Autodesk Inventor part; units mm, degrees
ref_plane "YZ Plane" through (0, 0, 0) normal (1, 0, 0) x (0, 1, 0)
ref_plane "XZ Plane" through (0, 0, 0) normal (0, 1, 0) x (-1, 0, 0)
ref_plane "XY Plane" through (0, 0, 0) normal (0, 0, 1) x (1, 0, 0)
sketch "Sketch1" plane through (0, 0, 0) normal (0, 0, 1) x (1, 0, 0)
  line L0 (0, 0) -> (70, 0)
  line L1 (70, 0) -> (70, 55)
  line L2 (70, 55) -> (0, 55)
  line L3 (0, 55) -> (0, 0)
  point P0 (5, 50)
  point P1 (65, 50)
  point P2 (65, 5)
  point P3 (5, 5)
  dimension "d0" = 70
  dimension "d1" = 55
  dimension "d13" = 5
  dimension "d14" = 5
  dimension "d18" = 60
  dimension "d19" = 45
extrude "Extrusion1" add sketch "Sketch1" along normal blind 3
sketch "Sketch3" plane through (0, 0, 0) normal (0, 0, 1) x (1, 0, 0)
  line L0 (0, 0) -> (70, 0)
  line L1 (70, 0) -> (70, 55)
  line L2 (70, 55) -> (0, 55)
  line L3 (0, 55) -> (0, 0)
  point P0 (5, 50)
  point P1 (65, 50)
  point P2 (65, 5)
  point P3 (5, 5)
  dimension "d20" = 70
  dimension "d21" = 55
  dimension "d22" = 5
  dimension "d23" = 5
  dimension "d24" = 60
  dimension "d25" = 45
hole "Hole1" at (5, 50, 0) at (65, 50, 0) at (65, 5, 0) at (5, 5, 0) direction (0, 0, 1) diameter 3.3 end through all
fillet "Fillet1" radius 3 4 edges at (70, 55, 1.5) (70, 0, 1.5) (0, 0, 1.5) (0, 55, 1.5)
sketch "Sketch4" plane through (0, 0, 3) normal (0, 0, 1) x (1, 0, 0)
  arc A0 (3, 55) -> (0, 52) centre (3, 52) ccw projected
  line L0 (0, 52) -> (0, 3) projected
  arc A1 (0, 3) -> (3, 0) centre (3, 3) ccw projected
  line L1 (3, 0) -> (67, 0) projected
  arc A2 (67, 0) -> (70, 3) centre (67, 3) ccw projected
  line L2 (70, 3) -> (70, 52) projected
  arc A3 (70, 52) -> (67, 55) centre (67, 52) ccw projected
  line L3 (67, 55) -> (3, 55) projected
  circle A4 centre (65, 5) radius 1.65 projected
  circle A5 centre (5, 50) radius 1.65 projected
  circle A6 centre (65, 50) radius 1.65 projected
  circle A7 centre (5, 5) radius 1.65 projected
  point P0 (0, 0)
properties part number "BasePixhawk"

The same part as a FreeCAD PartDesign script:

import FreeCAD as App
import Part
import Sketcher

V = App.Vector


def edges_at(feature, points):
    """Names of the edges that pass closest to the given points."""
    edges = feature.Shape.Edges
    near = lambda p: min(range(len(edges)), key=lambda i: edges[i].distToShape(Part.Vertex(*p))[0])
    return sorted({f"Edge{near(p) + 1}" for p in points})


def add_polygon(sketch, points):
    """Adds a closed chain of lines whose ends are joined by coincident constraints."""
    first, n = sketch.GeometryCount, len(points)
    for a, b in zip(points, points[1:] + points[:1]):
        sketch.addGeometry(Part.LineSegment(App.Vector(*a, 0), App.Vector(*b, 0)), False)
    for i in range(n):
        sketch.addConstraint(Sketcher.Constraint("Coincident", first + i, 2, first + (i + 1) % n, 1))

doc = App.newDocument("Part")
body = doc.addObject("PartDesign::Body", "Body")

sketch1 = doc.addObject("Sketcher::SketchObject", "Sketch")
body.addObject(sketch1)
sketch1.AttachmentSupport = (doc.XY_Plane, [""])
sketch1.MapMode = "FlatFace"
add_polygon(sketch1, [(0, 55), (0, 0), (70, 0), (70, 55)])
sketch1.addConstraint(Sketcher.Constraint("Vertical", 0))
sketch1.addConstraint(Sketcher.Constraint("Horizontal", 1))
sketch1.addConstraint(Sketcher.Constraint("Vertical", 2))
sketch1.addConstraint(Sketcher.Constraint("Horizontal", 3))
sketch1.addConstraint(Sketcher.Constraint("Coincident", 0, 2, -1, 1))
sketch1.addConstraint(Sketcher.Constraint("DistanceX", 1, 1, 1, 2, 70.0))
sketch1.addConstraint(Sketcher.Constraint("DistanceY", 0, 2, 0, 1, 55.0))
pad1 = doc.addObject("PartDesign::Pad", "Pad")
body.addObject(pad1)
pad1.Profile = sketch1
pad1.Length = 3

sketch2 = doc.addObject("Sketcher::SketchObject", "Sketch001")
body.addObject(sketch2)
sketch2.AttachmentSupport = (doc.XY_Plane, [""])
sketch2.MapMode = "FlatFace"
sketch2.addGeometry(Part.Circle(V(5, 50, 0), V(0, 0, 1), 1.6), False)
sketch2.addGeometry(Part.Circle(V(65, 50, 0), V(0, 0, 1), 1.6), False)
sketch2.addGeometry(Part.Circle(V(65, 5, 0), V(0, 0, 1), 1.6), False)
sketch2.addGeometry(Part.Circle(V(5, 5, 0), V(0, 0, 1), 1.6), False)
sketch2.addConstraint(Sketcher.Constraint("Equal", 0, 1))
sketch2.addConstraint(Sketcher.Constraint("Equal", 1, 2))
sketch2.addConstraint(Sketcher.Constraint("Equal", 2, 3))
sketch2.addConstraint(Sketcher.Constraint("Horizontal", 0, 3, 1, 3))
sketch2.addConstraint(Sketcher.Constraint("Horizontal", 2, 3, 3, 3))
sketch2.addConstraint(Sketcher.Constraint("Vertical", 1, 3, 2, 3))
sketch2.addConstraint(Sketcher.Constraint("Vertical", 0, 3, 3, 3))
sketch2.addConstraint(Sketcher.Constraint("Diameter", 0, 3.3))
sketch2.addConstraint(Sketcher.Constraint("DistanceX", -1, 1, 0, 3, 5.0))
sketch2.addConstraint(Sketcher.Constraint("DistanceY", -1, 1, 0, 3, 50.0))
sketch2.addConstraint(Sketcher.Constraint("DistanceX", -1, 1, 1, 3, 65.0))
sketch2.addConstraint(Sketcher.Constraint("DistanceY", -1, 1, 2, 3, 5.0))
doc.recompute()
hole = doc.addObject("PartDesign::Hole", "Hole")
body.addObject(hole)
hole.Profile = sketch2
hole.ThreadType = "None"
hole.Diameter = 3.3
hole.DepthType = "ThroughAll"
hole.Reversed = True
doc.recompute()

fillet = doc.addObject("PartDesign::Fillet", "Fillet")
body.addObject(fillet)
fillet.Base = (hole, edges_at(hole, [
    (70, 55, 1.5),
    (70, 0, 1.5),
    (0, 0, 1.5),
    (0, 55, 1.5),
]))
fillet.Radius = 3

doc.recompute()
